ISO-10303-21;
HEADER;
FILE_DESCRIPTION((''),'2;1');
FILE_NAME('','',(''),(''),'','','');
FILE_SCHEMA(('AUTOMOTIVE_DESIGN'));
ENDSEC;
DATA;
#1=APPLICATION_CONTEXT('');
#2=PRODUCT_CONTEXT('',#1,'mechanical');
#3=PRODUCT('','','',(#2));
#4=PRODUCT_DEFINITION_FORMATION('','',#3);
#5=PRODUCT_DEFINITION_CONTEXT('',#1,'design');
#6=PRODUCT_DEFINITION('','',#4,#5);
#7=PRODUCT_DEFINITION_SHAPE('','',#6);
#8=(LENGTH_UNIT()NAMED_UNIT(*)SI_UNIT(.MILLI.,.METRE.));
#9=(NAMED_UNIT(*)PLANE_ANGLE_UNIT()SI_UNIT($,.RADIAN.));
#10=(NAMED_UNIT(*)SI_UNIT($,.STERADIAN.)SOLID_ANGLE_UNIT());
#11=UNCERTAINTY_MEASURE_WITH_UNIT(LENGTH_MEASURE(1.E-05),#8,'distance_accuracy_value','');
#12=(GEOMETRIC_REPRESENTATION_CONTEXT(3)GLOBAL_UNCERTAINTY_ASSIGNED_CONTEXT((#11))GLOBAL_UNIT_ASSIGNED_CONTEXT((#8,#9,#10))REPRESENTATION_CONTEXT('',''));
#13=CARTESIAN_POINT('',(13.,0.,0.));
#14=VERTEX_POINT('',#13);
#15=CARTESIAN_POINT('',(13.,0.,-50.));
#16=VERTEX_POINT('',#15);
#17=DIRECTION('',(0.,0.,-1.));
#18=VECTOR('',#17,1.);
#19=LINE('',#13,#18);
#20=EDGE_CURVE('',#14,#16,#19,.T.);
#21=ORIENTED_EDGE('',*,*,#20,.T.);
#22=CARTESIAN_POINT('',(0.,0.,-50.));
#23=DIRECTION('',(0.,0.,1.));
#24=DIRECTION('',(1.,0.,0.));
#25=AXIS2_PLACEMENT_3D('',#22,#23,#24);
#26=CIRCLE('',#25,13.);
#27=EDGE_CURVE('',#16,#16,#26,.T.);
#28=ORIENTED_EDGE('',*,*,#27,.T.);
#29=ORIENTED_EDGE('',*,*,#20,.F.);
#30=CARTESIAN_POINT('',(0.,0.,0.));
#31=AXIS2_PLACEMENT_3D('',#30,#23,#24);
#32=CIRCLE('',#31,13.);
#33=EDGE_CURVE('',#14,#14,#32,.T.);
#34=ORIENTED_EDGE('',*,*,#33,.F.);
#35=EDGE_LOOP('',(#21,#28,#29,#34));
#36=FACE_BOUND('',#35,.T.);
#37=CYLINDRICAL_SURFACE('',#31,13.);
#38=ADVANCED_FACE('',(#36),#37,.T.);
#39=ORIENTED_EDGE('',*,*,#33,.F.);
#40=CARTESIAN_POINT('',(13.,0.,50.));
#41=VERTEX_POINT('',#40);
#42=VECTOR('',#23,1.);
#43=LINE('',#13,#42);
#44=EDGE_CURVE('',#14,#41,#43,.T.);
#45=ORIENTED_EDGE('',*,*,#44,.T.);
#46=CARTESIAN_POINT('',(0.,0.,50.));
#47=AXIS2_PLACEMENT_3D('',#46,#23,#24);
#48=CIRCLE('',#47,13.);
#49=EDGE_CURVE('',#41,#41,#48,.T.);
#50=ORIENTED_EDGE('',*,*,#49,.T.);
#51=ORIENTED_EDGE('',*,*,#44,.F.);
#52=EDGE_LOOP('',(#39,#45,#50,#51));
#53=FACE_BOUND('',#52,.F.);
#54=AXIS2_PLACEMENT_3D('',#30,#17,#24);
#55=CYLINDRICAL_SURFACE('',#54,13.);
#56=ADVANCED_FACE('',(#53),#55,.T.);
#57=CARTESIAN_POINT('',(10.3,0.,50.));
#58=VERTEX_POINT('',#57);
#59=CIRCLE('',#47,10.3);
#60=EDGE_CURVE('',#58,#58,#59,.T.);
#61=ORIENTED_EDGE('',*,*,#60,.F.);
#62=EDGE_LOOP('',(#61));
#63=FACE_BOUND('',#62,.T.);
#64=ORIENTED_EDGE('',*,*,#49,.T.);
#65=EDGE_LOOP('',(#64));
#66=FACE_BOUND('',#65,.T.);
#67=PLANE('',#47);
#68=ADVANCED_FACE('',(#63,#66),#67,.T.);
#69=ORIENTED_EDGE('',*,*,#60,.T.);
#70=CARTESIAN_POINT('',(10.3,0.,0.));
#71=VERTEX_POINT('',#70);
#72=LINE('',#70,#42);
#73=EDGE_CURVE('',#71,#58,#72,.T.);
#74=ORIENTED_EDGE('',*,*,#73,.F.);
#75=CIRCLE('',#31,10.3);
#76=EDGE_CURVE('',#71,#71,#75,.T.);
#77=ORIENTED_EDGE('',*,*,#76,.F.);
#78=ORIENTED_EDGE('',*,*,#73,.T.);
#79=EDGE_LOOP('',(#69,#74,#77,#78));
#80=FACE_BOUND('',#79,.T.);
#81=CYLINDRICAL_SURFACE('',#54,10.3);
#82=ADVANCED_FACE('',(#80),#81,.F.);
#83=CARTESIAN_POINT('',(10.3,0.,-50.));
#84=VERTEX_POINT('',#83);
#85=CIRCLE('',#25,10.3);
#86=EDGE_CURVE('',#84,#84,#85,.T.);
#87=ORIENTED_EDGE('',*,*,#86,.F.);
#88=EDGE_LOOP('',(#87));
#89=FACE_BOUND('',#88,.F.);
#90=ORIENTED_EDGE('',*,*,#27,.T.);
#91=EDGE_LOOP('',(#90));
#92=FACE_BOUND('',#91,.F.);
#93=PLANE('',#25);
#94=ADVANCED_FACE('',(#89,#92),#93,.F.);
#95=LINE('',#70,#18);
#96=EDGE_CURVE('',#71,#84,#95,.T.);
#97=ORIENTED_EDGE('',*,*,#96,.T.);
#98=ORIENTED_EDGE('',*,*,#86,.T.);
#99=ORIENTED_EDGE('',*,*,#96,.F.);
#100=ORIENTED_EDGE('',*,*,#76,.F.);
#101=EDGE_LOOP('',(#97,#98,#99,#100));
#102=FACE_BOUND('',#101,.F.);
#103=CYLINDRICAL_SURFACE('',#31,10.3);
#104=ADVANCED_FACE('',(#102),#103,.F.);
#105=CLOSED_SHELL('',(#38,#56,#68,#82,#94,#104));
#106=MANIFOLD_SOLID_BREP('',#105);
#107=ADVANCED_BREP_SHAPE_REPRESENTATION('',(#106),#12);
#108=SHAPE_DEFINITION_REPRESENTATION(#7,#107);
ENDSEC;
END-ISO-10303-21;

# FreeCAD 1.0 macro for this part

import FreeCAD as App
import Part
import Sketcher
from FreeCAD import Vector

doc = App.newDocument("Part")
body = doc.addObject("PartDesign::Body", "Body")

sketch1 = body.newObject("Sketcher::SketchObject", "Sketch")
sketch1.AttachmentSupport = (doc.getObject("XY_Plane"), [""])
sketch1.MapMode = "FlatFace"
sketch1.addGeometry(Part.Circle(Vector(0, 0, 0), Vector(0, 0, 1), 13), False)
sketch1.addGeometry(Part.Circle(Vector(0, 0, 0), Vector(0, 0, 1), 10), False)
sketch1.addConstraint(Sketcher.Constraint("Coincident", 0, 3, -1, 1))
sketch1.addConstraint(Sketcher.Constraint("Coincident", 1, 3, -1, 1))
sketch1.addConstraint(Sketcher.Constraint("Diameter", 0, 26.0))
sketch1.addConstraint(Sketcher.Constraint("Diameter", 1, 20.6))
pad1 = body.newObject("PartDesign::Pad", "Pad")
pad1.Profile = sketch1
pad1.Length = 100
pad1.Midplane = True

doc.recompute()
